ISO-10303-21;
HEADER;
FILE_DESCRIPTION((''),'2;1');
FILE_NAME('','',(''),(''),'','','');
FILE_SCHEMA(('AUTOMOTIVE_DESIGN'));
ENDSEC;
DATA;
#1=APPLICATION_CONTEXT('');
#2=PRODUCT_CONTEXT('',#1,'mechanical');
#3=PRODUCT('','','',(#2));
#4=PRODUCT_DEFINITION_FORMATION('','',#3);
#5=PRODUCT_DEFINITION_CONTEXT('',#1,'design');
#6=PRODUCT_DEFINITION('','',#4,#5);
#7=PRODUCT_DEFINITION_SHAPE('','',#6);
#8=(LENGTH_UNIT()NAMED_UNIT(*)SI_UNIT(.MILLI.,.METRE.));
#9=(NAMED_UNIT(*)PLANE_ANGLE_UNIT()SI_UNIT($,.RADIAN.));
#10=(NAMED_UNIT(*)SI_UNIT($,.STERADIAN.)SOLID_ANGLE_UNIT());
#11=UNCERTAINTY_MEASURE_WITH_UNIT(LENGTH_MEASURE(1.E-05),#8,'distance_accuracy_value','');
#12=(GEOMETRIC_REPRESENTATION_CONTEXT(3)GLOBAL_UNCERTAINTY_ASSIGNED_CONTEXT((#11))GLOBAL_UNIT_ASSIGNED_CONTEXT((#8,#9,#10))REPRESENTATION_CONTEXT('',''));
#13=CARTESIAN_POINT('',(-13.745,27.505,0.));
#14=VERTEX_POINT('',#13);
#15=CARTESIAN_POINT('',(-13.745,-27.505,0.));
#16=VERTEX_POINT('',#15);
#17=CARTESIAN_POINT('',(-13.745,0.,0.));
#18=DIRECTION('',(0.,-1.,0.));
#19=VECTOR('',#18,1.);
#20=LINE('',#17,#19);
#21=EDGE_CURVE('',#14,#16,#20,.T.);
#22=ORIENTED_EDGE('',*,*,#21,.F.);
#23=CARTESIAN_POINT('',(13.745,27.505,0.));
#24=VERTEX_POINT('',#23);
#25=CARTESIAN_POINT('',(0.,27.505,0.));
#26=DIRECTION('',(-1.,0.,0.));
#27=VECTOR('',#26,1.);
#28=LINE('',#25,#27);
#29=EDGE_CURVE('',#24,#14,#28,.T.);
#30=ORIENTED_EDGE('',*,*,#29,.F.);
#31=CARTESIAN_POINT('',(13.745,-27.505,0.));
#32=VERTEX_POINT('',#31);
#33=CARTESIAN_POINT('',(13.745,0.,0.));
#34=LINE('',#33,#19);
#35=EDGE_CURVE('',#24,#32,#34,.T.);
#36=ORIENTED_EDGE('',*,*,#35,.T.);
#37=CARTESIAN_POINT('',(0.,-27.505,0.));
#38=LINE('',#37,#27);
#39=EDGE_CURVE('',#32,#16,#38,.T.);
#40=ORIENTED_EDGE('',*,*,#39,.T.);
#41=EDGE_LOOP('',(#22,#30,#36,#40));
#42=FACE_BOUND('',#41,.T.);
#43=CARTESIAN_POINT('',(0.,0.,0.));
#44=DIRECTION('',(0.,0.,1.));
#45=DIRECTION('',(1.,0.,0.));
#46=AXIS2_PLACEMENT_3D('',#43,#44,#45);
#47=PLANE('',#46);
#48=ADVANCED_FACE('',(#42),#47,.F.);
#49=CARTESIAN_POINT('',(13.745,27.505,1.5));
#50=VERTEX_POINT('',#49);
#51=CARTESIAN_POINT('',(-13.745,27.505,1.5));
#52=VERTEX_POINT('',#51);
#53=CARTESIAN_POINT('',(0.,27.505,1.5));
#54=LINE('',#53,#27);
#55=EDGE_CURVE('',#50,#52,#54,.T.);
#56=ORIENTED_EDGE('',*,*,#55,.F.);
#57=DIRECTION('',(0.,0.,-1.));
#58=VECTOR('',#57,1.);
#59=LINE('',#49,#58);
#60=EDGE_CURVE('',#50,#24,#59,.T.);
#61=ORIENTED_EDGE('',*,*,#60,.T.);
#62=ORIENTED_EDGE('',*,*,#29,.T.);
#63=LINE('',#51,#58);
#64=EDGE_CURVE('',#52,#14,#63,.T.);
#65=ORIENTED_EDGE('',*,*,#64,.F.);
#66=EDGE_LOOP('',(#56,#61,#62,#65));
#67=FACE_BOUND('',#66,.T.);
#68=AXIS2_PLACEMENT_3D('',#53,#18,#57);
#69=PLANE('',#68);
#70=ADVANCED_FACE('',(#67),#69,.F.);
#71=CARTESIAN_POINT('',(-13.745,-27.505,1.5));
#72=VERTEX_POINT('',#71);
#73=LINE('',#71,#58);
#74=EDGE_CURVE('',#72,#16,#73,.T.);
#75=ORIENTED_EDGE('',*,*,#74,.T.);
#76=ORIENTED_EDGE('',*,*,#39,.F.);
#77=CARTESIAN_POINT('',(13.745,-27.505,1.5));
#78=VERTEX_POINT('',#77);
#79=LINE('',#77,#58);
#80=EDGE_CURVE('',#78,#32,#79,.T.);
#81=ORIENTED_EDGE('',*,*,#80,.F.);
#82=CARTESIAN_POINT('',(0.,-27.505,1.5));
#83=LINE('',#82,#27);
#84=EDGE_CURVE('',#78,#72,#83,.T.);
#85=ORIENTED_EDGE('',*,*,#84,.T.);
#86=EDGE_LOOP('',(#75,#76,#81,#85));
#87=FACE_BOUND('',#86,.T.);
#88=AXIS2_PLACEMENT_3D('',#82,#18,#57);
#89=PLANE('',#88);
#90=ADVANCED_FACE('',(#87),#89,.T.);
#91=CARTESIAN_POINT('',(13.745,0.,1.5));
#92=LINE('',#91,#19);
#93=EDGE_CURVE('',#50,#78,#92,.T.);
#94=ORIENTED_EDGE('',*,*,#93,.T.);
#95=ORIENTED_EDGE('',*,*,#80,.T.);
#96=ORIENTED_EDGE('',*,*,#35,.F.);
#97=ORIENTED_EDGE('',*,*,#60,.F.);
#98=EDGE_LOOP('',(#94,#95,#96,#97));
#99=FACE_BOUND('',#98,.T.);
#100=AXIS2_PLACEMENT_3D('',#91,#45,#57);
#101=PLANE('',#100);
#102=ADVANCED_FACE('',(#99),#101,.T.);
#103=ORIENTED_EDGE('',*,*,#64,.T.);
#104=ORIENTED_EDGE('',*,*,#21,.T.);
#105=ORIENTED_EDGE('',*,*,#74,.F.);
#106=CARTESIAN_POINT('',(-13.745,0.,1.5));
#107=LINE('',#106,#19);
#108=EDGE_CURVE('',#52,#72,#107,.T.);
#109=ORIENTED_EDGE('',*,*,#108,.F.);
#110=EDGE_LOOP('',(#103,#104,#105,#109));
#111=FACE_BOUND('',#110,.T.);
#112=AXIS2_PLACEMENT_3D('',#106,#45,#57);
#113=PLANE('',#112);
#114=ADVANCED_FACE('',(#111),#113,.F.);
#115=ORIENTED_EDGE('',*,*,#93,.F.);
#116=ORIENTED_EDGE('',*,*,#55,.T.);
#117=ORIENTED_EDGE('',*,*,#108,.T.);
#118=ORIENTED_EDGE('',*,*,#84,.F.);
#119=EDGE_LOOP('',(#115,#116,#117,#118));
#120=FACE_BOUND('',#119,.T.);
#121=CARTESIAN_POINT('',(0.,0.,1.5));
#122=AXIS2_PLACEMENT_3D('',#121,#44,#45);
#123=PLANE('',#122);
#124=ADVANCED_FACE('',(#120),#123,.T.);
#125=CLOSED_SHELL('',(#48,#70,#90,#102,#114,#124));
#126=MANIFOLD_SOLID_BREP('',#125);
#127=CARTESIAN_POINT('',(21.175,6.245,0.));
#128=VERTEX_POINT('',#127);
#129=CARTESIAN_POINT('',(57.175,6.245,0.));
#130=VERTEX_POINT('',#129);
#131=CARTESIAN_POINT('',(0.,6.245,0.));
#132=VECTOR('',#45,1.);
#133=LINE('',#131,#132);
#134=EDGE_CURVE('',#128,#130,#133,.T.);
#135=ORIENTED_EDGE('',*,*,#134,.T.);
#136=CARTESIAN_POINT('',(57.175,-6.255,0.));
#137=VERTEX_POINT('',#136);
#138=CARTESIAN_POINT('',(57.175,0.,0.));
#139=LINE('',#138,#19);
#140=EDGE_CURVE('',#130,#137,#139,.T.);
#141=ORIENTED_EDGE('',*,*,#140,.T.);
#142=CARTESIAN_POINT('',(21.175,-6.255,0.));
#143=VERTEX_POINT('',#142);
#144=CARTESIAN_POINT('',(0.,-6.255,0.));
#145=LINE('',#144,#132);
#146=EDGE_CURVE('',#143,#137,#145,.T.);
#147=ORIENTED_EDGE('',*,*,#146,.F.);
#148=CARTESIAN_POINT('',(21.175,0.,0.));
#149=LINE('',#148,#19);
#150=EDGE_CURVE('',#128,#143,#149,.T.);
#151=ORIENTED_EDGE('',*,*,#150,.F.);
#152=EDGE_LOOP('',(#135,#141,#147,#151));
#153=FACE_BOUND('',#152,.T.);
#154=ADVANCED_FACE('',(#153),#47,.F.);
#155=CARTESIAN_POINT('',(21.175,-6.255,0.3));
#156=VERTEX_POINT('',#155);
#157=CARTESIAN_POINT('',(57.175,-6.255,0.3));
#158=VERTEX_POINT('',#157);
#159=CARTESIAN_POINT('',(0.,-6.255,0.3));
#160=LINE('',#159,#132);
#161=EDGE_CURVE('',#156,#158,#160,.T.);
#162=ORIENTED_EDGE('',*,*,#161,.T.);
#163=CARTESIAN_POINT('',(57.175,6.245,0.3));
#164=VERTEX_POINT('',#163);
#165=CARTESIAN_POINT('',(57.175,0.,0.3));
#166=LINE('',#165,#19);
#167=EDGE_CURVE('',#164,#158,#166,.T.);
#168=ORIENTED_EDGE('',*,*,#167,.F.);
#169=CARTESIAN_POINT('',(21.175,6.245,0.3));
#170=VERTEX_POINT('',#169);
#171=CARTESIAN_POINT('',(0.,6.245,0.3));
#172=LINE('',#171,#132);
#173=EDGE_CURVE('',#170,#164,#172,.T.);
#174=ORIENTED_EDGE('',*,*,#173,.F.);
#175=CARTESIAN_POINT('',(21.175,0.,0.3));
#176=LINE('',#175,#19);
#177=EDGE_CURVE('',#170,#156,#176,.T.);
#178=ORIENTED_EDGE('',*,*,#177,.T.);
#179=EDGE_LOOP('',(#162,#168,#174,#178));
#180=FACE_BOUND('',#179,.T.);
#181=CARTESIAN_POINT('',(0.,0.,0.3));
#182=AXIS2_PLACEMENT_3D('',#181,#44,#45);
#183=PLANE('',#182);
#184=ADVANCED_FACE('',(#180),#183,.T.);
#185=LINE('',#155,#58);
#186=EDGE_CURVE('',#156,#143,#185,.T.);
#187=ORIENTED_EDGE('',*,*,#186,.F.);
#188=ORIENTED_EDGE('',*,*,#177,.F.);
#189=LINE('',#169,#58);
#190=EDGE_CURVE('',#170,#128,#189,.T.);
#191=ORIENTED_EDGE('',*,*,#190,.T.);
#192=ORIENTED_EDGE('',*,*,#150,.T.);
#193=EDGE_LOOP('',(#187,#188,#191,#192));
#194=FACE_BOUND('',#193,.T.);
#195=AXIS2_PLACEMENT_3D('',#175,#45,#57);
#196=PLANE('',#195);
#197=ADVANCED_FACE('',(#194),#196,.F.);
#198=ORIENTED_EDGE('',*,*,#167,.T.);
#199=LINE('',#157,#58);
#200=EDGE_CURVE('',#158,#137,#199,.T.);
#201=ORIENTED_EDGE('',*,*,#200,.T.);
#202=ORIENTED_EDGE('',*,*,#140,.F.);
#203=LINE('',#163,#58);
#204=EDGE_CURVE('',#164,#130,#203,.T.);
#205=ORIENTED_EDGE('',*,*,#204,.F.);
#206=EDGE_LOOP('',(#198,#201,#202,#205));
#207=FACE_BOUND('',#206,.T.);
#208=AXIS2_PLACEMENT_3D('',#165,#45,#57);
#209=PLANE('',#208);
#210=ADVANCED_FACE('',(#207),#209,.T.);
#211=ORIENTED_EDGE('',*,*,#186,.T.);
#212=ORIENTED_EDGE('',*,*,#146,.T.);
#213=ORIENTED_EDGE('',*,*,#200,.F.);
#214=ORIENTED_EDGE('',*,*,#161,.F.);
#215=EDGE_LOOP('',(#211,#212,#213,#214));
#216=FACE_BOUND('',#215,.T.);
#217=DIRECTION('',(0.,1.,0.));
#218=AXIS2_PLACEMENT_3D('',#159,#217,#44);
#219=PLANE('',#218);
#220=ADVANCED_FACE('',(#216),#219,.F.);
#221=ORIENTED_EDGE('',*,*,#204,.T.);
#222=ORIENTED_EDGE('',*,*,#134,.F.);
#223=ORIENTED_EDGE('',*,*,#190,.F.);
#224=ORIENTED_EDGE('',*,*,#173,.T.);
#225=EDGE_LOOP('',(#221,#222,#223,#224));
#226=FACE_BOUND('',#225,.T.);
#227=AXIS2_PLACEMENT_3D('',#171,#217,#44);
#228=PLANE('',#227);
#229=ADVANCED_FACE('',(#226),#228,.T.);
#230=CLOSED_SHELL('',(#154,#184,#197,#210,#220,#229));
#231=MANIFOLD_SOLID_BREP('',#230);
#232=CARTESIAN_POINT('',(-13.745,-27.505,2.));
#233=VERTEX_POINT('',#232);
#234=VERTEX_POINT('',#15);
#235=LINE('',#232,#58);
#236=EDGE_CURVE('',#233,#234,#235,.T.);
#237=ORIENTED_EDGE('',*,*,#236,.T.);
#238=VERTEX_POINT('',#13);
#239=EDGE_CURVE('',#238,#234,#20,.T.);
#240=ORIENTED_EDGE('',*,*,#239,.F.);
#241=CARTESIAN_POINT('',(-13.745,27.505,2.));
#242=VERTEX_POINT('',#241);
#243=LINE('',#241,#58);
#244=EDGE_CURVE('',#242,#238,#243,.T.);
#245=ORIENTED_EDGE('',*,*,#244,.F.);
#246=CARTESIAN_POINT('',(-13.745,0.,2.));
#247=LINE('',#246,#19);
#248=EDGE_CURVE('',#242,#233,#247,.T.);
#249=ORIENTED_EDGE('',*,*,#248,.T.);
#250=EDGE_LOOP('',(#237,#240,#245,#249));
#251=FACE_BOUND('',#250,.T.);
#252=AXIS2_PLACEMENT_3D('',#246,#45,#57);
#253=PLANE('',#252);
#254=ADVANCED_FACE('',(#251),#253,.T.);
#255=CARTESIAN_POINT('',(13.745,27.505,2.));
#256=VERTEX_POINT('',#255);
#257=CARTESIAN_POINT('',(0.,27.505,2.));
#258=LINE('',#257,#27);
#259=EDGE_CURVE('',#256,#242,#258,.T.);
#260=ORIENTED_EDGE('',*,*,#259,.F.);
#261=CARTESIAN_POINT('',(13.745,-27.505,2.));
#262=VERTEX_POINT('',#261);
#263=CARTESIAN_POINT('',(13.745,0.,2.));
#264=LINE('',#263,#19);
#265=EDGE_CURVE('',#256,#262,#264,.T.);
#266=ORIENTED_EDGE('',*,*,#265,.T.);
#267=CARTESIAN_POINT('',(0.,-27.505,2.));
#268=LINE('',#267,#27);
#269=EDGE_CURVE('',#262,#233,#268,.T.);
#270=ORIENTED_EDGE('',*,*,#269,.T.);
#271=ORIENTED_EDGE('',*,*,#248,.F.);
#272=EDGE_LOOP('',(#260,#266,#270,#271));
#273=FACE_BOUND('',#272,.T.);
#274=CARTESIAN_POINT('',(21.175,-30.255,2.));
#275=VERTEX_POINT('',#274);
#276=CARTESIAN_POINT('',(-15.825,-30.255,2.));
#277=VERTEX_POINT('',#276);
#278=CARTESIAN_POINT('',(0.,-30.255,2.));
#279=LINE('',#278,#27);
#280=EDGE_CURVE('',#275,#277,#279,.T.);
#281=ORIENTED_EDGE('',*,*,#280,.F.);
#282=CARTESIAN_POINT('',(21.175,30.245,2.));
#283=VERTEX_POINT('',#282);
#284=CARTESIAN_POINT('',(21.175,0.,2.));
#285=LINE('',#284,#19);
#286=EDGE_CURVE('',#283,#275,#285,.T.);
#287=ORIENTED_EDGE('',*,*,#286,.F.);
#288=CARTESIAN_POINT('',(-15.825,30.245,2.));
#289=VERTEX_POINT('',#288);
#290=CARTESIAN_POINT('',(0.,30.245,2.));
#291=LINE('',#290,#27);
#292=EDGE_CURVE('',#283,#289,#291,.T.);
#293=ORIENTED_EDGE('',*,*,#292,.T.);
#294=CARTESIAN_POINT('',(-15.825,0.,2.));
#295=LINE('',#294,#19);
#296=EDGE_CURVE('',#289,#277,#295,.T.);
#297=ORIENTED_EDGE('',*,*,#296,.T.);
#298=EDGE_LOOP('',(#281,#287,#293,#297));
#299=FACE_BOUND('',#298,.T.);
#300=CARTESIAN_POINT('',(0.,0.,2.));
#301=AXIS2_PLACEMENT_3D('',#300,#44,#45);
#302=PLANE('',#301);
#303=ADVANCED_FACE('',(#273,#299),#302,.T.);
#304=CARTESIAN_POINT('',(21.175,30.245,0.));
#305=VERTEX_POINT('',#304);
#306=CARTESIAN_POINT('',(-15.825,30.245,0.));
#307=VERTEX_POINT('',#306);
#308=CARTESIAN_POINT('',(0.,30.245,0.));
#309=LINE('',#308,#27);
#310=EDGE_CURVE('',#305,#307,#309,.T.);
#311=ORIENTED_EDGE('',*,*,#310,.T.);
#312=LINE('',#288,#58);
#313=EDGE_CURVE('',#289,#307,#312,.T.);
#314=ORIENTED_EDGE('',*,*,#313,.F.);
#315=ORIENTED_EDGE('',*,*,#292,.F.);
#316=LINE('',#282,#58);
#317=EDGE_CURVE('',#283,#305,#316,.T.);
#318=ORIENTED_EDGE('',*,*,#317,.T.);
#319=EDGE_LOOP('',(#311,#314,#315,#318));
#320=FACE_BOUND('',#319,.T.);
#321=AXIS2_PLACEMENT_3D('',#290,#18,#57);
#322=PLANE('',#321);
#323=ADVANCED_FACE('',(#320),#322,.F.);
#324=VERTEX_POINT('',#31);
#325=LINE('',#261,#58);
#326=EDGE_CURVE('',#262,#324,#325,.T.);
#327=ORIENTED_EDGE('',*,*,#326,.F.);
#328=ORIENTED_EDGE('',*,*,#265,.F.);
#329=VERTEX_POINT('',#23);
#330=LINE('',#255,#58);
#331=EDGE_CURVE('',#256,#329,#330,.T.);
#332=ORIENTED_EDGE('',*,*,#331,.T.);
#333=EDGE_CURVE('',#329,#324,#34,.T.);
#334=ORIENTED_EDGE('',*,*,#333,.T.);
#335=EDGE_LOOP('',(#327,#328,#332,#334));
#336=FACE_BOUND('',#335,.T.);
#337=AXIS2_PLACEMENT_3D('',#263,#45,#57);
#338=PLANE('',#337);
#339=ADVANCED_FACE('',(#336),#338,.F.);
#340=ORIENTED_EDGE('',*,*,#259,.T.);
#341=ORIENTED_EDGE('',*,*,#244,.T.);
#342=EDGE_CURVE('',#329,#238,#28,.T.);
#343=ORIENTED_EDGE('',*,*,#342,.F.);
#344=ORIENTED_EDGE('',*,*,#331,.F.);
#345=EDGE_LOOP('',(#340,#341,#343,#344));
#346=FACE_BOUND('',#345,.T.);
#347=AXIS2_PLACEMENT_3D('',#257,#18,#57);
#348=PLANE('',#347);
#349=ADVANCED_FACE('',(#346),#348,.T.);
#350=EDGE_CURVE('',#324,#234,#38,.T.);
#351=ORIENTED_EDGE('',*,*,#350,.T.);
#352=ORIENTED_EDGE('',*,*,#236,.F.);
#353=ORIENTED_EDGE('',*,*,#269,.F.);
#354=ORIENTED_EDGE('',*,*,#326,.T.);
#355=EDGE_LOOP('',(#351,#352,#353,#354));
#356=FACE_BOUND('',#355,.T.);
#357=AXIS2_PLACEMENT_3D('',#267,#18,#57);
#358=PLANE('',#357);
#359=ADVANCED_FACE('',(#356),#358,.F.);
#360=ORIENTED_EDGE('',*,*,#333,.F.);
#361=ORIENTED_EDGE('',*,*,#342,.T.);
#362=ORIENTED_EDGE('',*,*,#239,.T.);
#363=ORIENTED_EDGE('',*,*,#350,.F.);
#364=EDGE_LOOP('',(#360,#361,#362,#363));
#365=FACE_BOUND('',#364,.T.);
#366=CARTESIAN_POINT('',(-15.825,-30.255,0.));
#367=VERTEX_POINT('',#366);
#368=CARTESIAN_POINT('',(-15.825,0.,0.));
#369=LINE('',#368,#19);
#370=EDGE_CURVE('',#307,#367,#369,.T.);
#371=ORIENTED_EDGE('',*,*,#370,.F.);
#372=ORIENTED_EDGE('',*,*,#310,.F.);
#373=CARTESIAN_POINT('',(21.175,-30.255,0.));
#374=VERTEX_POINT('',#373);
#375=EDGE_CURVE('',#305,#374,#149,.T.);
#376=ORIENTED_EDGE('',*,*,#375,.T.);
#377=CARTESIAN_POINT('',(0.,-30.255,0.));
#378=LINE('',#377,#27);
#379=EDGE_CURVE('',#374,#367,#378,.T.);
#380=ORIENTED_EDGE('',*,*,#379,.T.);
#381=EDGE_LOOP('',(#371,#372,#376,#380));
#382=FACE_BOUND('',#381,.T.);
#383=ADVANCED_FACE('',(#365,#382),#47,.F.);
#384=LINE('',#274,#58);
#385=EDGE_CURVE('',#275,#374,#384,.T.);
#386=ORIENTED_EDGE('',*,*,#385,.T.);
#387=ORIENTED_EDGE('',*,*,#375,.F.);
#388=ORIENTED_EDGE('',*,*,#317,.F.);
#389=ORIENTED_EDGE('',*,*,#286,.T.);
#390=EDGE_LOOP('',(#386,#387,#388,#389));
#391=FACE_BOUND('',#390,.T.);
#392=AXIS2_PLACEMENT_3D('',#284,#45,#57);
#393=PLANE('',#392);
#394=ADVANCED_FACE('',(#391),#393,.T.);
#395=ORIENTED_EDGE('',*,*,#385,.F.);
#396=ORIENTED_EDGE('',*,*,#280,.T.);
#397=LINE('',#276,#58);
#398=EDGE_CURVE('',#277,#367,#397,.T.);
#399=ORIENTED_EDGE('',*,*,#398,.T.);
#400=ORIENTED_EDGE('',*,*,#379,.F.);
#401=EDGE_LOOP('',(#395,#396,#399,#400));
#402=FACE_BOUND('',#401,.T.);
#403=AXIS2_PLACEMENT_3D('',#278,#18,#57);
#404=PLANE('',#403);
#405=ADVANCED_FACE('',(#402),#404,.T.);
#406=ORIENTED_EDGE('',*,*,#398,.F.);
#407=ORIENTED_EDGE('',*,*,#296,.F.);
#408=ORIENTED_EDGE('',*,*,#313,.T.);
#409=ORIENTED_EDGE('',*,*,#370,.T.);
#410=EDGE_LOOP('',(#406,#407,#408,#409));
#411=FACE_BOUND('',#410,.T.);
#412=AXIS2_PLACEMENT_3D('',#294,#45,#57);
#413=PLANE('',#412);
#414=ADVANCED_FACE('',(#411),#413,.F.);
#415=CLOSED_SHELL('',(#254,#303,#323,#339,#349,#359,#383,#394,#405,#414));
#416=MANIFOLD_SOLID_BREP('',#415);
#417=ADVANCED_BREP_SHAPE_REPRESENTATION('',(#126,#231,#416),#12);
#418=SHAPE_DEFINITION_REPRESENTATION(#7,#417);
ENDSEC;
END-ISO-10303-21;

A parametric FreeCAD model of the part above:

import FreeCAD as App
import Part
import Sketcher
from FreeCAD import Vector
Q = App.Units.Quantity


def add_polygon(sketch, points):
    """Adds a closed chain of lines whose ends are joined by coincident constraints."""
    first, n = sketch.GeometryCount, len(points)
    for a, b in zip(points, points[1:] + points[:1]):
        sketch.addGeometry(Part.LineSegment(App.Vector(*a, 0), App.Vector(*b, 0)), False)
    for i in range(n):
        sketch.addConstraint(Sketcher.Constraint("Coincident", first + i, 2, first + (i + 1) % n, 1))

doc = App.newDocument("Part")
params = doc.addObject("Spreadsheet::Sheet", "Params")
for row, (alias, value) in enumerate([
    ("sketch1_width", "27.49 mm"),
    ("sketch1_height", "55.01 mm"),
    ("pad1_length", "1.5 mm"),
    ("sketch2_width", "37 mm"),
    ("sketch2_height", "60.5 mm"),
    ("sketch2_width2", "27.49 mm"),
    ("sketch2_height2", "55.01 mm"),
    ("pad2_length", "2 mm"),
    ("sketch3_width", "36 mm"),
    ("sketch3_height", "12.5 mm"),
    ("pad3_length", "0.3 mm"),
], start=1):
    params.set(f"A{row}", alias)
    params.set(f"B{row}", "=" + value)
    params.setAlias(f"B{row}", alias)

body = doc.addObject("PartDesign::Body", "Body")

sketch1 = body.newObject("Sketcher::SketchObject", "Sketch")
sketch1.AttachmentSupport = (doc.getObject("XY_Plane"), [""])
sketch1.MapMode = "FlatFace"
add_polygon(sketch1, [(-14, 28), (-14, -28), (14, -28), (14, 28)])
sketch1.addConstraint(Sketcher.Constraint("Vertical", 0))
sketch1.addConstraint(Sketcher.Constraint("Horizontal", 1))
sketch1.addConstraint(Sketcher.Constraint("Vertical", 2))
sketch1.addConstraint(Sketcher.Constraint("Horizontal", 3))
sketch1.addConstraint(Sketcher.Constraint("Symmetric", 0, 2, 2, 2, -1, 1))
sketch1.addConstraint(Sketcher.Constraint("DistanceX", 1, 1, 1, 2, Q("27.49 mm")))
sketch1.addConstraint(Sketcher.Constraint("DistanceY", 0, 2, 0, 1, Q("55.01 mm")))
sketch1.setExpression("Constraints[9]", "Params.sketch1_width")
sketch1.setExpression("Constraints[10]", "Params.sketch1_height")
pad1 = body.newObject("PartDesign::Pad", "Pad")
pad1.Profile = sketch1
pad1.setExpression("Length", "Params.pad1_length")
body2 = doc.addObject("PartDesign::Body", "Body001")

sketch2 = body2.newObject("Sketcher::SketchObject", "Sketch001")
sketch2.AttachmentSupport = (doc.getObject("XY_Plane001"), [""])
sketch2.MapMode = "FlatFace"
add_polygon(sketch2, [(-16, 30), (-16, -30), (21, -30), (21, 30)])
add_polygon(sketch2, [(14, -28), (-14, -28), (-14, 28), (14, 28)])
sketch2.addConstraint(Sketcher.Constraint("Vertical", 0))
sketch2.addConstraint(Sketcher.Constraint("Horizontal", 1))
sketch2.addConstraint(Sketcher.Constraint("Vertical", 2))
sketch2.addConstraint(Sketcher.Constraint("Horizontal", 3))
sketch2.addConstraint(Sketcher.Constraint("Horizontal", 4))
sketch2.addConstraint(Sketcher.Constraint("Vertical", 5))
sketch2.addConstraint(Sketcher.Constraint("Horizontal", 6))
sketch2.addConstraint(Sketcher.Constraint("Vertical", 7))
sketch2.addConstraint(Sketcher.Constraint("Symmetric", 4, 2, 6, 2, -1, 1))
sketch2.addConstraint(Sketcher.Constraint("DistanceX", 1, 1, 1, 2, Q("37 mm")))
sketch2.addConstraint(Sketcher.Constraint("DistanceY", 0, 2, 0, 1, Q("60.5 mm")))
sketch2.addConstraint(Sketcher.Constraint("DistanceX", 4, 2, 4, 1, Q("27.49 mm")))
sketch2.addConstraint(Sketcher.Constraint("DistanceY", 5, 1, 5, 2, Q("55.01 mm")))
sketch2.addConstraint(Sketcher.Constraint("DistanceX", 0, 2, 4, 2, Q("2.08 mm")))
sketch2.addConstraint(Sketcher.Constraint("DistanceY", 0, 2, 4, 2, Q("2.75 mm")))
sketch2.setExpression("Constraints[17]", "Params.sketch2_width")
sketch2.setExpression("Constraints[18]", "Params.sketch2_height")
sketch2.setExpression("Constraints[19]", "Params.sketch2_width2")
sketch2.setExpression("Constraints[20]", "Params.sketch2_height2")
pad2 = body2.newObject("PartDesign::Pad", "Pad001")
pad2.Profile = sketch2
pad2.setExpression("Length", "Params.pad2_length")
body3 = doc.addObject("PartDesign::Body", "Body002")

sketch3 = body3.newObject("Sketcher::SketchObject", "Sketch002")
sketch3.AttachmentSupport = (doc.getObject("XY_Plane002"), [""])
sketch3.MapMode = "FlatFace"
add_polygon(sketch3, [(21, 6), (21, -6), (57, -6), (57, 6)])
sketch3.addConstraint(Sketcher.Constraint("Vertical", 0))
sketch3.addConstraint(Sketcher.Constraint("Horizontal", 1))
sketch3.addConstraint(Sketcher.Constraint("Vertical", 2))
sketch3.addConstraint(Sketcher.Constraint("Horizontal", 3))
sketch3.addConstraint(Sketcher.Constraint("DistanceX", 1, 1, 1, 2, Q("36 mm")))
sketch3.addConstraint(Sketcher.Constraint("DistanceY", 0, 2, 0, 1, Q("12.5 mm")))
sketch3.addConstraint(Sketcher.Constraint("DistanceX", -1, 1, 0, 2, Q("21.175 mm")))
sketch3.addConstraint(Sketcher.Constraint("DistanceY", 0, 2, -1, 1, Q("6.255 mm")))
sketch3.setExpression("Constraints[8]", "Params.sketch3_width")
sketch3.setExpression("Constraints[9]", "Params.sketch3_height")
pad3 = body3.newObject("PartDesign::Pad", "Pad002")
pad3.Profile = sketch3
pad3.setExpression("Length", "Params.pad3_length")

doc.recompute()
